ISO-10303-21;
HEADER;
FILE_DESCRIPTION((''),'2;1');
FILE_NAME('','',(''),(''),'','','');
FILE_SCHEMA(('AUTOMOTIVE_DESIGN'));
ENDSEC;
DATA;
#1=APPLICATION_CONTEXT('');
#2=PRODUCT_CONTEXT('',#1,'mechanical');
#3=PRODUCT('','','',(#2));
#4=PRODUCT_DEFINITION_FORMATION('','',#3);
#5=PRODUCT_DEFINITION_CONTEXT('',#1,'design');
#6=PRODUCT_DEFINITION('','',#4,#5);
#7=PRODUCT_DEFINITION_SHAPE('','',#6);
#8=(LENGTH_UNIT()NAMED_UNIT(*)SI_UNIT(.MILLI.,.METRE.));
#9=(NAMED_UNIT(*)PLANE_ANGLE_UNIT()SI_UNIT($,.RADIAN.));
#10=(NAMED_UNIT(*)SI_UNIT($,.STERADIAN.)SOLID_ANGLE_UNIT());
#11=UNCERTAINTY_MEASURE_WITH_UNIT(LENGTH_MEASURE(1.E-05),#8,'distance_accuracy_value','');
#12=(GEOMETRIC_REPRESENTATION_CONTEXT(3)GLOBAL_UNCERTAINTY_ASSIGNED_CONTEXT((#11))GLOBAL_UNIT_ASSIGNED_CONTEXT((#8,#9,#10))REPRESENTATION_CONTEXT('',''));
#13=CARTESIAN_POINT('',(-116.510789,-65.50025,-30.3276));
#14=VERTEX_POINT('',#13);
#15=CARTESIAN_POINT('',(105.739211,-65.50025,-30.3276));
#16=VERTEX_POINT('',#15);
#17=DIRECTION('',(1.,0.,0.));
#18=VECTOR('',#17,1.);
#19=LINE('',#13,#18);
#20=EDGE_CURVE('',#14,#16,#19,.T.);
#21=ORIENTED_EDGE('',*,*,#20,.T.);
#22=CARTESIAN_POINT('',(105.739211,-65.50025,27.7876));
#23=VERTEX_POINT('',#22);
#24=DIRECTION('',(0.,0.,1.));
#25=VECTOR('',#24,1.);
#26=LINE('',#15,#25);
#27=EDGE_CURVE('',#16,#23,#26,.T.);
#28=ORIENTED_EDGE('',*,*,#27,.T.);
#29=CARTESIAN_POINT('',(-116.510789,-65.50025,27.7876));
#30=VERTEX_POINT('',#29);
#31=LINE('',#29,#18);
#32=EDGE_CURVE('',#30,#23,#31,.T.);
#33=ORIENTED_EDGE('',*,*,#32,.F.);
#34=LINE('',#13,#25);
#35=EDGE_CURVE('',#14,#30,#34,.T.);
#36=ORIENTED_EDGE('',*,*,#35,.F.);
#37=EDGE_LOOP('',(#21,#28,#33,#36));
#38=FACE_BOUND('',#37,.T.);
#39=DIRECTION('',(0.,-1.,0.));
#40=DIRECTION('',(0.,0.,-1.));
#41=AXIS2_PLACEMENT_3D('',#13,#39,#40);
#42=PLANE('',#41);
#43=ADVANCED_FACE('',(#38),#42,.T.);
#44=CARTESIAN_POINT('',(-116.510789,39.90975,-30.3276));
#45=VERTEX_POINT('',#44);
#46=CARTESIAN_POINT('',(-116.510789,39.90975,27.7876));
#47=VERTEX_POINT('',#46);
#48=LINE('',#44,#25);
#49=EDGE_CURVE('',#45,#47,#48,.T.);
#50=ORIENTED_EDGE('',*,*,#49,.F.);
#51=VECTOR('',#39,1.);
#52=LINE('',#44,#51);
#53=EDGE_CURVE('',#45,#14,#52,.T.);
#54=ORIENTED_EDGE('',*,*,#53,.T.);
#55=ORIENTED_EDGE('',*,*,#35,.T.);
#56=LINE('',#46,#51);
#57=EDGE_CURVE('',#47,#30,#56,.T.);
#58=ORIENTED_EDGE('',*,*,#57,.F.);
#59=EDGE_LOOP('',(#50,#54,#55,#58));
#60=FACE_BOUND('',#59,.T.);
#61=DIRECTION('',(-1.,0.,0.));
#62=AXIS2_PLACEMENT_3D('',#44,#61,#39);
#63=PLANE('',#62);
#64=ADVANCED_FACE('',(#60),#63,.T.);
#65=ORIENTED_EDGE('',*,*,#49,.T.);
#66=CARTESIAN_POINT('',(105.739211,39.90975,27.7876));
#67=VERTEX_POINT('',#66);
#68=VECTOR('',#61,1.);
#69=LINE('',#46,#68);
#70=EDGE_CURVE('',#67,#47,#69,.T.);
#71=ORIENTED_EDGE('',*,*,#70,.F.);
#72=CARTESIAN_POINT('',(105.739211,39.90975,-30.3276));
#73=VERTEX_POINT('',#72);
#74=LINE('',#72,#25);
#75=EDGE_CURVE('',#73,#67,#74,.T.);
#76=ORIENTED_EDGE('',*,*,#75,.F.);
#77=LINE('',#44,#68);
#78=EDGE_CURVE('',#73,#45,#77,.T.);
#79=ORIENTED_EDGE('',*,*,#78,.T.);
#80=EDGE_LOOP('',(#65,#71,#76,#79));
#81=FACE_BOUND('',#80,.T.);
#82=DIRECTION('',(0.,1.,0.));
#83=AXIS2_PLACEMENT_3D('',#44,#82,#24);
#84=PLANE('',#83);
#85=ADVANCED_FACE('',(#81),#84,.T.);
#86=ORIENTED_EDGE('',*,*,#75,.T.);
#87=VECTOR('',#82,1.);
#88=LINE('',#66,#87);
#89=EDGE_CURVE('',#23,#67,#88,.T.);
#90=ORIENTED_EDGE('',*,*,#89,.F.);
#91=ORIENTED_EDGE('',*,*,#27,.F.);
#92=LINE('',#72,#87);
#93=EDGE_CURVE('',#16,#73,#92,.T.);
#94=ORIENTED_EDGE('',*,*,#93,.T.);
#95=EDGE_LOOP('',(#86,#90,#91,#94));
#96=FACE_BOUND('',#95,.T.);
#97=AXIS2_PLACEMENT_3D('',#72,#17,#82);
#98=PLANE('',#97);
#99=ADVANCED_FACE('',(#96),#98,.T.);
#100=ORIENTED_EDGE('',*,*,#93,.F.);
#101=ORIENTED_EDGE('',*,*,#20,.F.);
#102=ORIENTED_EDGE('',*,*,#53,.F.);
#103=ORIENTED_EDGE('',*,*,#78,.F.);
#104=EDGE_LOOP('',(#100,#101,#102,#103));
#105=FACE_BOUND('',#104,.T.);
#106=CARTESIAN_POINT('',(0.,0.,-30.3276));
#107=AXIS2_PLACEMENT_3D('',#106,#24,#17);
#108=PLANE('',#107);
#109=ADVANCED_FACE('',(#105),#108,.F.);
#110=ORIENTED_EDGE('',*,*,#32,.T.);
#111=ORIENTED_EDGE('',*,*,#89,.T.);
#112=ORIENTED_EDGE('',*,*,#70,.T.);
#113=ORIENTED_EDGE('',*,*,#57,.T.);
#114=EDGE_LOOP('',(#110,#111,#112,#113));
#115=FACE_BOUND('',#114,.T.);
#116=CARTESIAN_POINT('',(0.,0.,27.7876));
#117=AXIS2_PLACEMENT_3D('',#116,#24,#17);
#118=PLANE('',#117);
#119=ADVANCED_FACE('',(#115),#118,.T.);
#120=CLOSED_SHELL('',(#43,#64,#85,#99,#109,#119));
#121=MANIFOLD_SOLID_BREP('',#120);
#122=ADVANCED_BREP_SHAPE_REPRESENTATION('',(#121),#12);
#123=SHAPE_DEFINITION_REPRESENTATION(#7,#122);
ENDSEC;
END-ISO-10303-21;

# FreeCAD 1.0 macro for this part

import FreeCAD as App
import Part
import Sketcher

V = App.Vector
Q = App.Units.Quantity

doc = App.newDocument("Part")
body = doc.addObject("PartDesign::Body", "Body")

sketch1 = body.newObject("Sketcher::SketchObject", "Sketch")
sketch1.AttachmentSupport = (doc.getObject("XY_Plane"), [""])
sketch1.MapMode = "FlatFace"
sketch1.addGeometry([
    Part.LineSegment(V(-117, 40, 0), V(-117, -66, 0)),
    Part.LineSegment(V(-117, -66, 0), V(106, -66, 0)),
    Part.LineSegment(V(106, -66, 0), V(106, 40, 0)),
    Part.LineSegment(V(106, 40, 0), V(-117, 40, 0)),
], False)
sketch1.addConstraint([
    Sketcher.Constraint("Coincident", 0, 2, 1, 1),
    Sketcher.Constraint("Coincident", 1, 2, 2, 1),
    Sketcher.Constraint("Coincident", 2, 2, 3, 1),
    Sketcher.Constraint("Coincident", 3, 2, 0, 1),
    Sketcher.Constraint("Vertical", 0),
    Sketcher.Constraint("Horizontal", 1),
    Sketcher.Constraint("Vertical", 2),
    Sketcher.Constraint("Horizontal", 3),
    Sketcher.Constraint("DistanceX", 1, 1, 1, 2, Q("8.75 in")),
    Sketcher.Constraint("DistanceY", 0, 2, 0, 1, Q("4.15 in")),
    Sketcher.Constraint("DistanceX", 0, 2, -1, 1, Q("116.510789 mm")),
    Sketcher.Constraint("DistanceY", 0, 2, -1, 1, Q("65.50025 mm")),
])
pad1 = body.newObject("PartDesign::Pad", "Pad")
pad1.Profile = sketch1
pad1.Type = "TwoLengths"
pad1.Length = Q("1.094 in")
pad1.Length2 = Q("1.194 in")

doc.recompute()
